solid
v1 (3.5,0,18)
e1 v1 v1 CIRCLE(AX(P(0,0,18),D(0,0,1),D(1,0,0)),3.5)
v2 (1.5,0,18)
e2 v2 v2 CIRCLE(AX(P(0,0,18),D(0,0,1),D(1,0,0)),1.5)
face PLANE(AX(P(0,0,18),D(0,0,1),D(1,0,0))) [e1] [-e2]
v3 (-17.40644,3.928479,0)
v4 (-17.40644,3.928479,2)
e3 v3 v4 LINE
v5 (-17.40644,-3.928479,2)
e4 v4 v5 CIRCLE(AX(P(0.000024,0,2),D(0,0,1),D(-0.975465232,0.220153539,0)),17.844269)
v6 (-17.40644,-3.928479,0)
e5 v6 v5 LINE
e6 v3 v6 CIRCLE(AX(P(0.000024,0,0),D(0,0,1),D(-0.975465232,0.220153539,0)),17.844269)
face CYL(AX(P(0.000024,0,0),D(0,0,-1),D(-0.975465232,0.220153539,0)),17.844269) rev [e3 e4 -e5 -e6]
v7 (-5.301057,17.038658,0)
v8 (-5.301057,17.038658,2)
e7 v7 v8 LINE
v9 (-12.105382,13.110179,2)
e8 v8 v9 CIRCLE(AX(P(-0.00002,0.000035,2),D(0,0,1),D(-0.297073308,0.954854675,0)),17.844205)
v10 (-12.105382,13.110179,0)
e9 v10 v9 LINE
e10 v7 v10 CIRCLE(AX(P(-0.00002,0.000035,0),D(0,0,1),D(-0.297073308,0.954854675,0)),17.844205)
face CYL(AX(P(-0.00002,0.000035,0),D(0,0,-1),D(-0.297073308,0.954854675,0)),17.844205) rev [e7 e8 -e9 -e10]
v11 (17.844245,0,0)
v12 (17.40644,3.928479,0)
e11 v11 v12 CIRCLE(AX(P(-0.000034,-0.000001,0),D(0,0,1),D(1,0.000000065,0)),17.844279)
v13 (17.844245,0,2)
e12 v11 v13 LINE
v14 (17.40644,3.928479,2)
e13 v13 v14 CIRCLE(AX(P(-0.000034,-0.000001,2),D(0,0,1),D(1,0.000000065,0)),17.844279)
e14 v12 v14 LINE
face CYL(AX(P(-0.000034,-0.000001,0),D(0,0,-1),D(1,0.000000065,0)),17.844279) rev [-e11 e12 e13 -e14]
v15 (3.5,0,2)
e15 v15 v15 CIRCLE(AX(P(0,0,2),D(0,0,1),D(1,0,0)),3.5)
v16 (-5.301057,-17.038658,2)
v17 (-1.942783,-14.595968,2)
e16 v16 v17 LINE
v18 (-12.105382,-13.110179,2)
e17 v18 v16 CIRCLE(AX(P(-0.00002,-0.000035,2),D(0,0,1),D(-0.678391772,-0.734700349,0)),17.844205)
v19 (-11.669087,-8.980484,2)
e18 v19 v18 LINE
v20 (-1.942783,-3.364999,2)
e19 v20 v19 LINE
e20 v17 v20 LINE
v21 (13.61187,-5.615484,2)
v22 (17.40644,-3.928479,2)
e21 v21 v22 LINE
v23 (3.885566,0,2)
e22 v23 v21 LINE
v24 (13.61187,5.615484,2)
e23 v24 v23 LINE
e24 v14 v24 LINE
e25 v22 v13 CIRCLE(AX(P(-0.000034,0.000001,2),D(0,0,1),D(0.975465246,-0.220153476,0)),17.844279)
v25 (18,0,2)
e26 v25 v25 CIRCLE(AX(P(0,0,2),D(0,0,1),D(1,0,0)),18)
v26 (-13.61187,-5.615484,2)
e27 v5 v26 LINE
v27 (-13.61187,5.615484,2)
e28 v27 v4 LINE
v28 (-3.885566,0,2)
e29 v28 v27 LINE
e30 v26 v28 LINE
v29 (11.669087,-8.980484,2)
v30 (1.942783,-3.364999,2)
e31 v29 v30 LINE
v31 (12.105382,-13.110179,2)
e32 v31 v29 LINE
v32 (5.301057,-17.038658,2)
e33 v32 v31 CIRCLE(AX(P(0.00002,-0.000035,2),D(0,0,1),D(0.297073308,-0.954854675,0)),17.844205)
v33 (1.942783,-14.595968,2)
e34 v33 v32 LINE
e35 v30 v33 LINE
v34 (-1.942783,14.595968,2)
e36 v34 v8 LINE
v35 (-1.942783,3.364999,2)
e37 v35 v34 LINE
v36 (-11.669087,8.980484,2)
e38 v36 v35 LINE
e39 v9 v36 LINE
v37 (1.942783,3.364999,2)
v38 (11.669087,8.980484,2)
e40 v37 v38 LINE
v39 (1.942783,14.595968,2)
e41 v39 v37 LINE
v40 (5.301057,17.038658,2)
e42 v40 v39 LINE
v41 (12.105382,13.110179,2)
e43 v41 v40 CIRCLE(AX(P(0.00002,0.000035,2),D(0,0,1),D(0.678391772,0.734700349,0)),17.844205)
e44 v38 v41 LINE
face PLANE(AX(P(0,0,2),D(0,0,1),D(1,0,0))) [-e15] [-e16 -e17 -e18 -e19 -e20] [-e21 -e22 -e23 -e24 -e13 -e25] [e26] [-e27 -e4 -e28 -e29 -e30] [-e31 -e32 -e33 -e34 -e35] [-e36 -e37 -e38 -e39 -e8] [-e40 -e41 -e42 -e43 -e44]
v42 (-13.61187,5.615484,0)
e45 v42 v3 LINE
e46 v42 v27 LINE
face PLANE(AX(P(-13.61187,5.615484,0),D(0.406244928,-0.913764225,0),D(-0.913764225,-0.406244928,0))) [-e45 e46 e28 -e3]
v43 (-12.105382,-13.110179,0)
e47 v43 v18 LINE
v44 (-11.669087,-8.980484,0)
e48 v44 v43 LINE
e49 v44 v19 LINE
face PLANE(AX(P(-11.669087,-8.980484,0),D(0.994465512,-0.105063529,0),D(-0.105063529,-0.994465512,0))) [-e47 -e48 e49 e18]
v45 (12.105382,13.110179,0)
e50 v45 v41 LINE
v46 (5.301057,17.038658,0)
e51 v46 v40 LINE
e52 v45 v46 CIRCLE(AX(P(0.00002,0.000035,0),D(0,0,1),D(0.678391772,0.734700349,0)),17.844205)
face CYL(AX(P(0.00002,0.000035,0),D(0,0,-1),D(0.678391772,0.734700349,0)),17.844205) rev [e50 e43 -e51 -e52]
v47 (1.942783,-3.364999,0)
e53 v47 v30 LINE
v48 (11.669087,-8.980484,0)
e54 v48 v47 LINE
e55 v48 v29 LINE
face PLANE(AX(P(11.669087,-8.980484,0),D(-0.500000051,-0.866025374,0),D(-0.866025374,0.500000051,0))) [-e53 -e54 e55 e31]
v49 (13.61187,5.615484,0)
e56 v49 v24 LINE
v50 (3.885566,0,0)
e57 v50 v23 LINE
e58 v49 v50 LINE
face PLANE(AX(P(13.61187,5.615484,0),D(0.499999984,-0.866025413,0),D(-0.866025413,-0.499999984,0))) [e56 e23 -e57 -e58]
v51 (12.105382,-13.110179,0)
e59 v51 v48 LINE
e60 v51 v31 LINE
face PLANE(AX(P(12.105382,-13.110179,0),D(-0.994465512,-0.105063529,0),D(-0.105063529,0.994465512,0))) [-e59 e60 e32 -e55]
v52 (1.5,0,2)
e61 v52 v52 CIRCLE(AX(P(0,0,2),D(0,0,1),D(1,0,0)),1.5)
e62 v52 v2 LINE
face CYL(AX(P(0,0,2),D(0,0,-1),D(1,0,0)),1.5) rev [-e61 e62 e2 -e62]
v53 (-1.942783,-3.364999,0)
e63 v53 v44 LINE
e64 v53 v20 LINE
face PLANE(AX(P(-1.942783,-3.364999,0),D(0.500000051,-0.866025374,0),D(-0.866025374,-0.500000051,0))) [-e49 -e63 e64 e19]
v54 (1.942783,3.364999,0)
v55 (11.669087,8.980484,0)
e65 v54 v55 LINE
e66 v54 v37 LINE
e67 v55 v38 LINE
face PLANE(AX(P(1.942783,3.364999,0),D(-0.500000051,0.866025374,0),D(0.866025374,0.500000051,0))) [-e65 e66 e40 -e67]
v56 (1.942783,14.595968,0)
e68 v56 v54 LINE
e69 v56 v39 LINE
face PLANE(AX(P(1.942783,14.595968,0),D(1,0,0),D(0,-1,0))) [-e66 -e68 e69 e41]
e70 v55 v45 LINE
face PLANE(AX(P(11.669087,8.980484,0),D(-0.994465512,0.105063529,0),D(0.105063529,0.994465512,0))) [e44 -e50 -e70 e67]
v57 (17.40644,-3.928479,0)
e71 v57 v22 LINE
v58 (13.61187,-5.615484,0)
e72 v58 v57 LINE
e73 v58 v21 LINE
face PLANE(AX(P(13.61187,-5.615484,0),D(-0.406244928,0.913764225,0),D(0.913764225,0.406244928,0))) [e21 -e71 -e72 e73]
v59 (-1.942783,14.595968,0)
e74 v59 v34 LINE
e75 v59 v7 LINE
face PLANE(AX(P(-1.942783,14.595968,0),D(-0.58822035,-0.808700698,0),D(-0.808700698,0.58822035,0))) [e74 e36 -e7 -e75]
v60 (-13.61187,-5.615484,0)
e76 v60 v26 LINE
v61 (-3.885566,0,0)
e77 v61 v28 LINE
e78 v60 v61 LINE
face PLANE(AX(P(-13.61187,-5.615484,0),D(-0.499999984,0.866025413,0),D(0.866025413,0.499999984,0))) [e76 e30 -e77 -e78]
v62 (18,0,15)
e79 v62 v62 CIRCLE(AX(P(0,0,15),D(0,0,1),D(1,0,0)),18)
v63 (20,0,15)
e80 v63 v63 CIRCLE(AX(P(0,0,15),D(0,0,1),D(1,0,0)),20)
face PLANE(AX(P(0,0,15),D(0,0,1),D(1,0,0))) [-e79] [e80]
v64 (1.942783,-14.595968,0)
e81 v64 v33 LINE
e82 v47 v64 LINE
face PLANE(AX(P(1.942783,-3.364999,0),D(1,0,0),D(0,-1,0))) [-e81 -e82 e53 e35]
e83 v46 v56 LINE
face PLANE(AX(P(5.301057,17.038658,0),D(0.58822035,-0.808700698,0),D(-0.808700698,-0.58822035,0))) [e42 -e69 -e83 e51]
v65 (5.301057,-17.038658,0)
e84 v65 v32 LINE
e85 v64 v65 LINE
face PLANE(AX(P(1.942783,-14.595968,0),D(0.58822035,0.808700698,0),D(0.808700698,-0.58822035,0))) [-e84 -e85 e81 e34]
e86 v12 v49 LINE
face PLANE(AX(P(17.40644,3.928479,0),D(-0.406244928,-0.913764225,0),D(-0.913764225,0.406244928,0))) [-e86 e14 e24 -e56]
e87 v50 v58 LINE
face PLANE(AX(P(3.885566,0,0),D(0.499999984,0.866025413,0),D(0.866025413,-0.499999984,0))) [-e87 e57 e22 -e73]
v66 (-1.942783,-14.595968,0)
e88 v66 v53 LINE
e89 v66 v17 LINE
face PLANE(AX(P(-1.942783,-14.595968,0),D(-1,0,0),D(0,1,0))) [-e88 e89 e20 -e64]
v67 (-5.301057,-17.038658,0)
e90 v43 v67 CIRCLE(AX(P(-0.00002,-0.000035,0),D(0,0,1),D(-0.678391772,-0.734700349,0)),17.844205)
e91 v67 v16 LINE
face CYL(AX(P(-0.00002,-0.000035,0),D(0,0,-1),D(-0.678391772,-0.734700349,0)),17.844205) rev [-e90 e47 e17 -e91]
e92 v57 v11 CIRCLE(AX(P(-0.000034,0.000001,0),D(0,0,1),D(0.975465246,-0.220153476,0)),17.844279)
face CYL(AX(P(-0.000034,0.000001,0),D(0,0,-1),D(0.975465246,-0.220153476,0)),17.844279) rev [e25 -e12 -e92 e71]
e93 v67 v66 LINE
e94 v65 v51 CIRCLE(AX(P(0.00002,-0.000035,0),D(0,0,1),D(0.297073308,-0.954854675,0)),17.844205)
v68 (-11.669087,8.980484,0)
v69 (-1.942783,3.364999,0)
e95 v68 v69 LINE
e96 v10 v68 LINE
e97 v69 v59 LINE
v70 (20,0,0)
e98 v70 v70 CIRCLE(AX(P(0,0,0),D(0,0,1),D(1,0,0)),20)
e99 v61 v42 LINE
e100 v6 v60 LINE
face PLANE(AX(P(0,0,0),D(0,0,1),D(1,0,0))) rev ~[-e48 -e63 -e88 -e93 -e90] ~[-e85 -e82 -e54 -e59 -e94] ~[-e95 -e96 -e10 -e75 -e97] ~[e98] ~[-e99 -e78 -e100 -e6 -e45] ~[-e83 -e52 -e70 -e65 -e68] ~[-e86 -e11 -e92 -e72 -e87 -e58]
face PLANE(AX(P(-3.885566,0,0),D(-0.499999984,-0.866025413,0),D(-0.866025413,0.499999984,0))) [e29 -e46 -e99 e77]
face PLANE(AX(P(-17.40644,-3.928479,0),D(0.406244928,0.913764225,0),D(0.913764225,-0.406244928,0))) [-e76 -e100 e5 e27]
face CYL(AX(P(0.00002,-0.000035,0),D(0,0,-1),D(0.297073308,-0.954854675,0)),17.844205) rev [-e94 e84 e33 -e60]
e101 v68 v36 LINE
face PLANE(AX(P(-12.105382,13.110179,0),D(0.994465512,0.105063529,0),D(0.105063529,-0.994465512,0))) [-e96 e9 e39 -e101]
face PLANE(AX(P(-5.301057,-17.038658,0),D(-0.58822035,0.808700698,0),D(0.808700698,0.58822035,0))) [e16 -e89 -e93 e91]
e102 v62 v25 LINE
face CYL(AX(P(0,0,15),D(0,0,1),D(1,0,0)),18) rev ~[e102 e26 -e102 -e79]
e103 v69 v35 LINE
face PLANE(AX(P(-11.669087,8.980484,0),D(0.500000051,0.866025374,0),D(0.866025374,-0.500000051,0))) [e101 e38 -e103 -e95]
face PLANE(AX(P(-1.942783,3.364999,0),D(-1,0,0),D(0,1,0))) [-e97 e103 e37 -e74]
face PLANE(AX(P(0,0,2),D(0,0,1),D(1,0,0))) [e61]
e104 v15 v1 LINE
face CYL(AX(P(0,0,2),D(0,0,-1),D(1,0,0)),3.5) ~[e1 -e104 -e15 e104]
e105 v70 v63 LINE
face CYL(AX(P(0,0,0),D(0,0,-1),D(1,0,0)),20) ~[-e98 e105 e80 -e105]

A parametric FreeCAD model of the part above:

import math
import FreeCAD as App
import Part
import Sketcher

V = App.Vector
Q = App.Units.Quantity

doc = App.newDocument("Part")
body = doc.addObject("PartDesign::Body", "Body")

# Sketch on XY plane
sketch1 = doc.addObject("Sketcher::SketchObject", "Sketch")
body.addObject(sketch1)
sketch1.AttachmentSupport = (doc.XY_Plane, [""])
sketch1.MapMode = "FlatFace"
sketch1.addGeometry(Part.Circle(V(0, 0, 0), V(0, 0, 1), 20), False)
sketch1.addConstraint([
    Sketcher.Constraint("Coincident", 0, 3, -1, 1),
    Sketcher.Constraint("Diameter", 0, 40.0),
])
pad1 = doc.addObject("PartDesign::Pad", "Pad")
body.addObject(pad1)
pad1.Profile = sketch1
pad1.Length = 15

# Sketch on XY plane
sketch2 = doc.addObject("Sketcher::SketchObject", "Sketch001")
body.addObject(sketch2)
sketch2.AttachmentSupport = (doc.XY_Plane, [""])
sketch2.MapMode = "FlatFace"
sketch2.AttachmentOffset = App.Placement(V(0, 0, 15), App.Rotation())
sketch2.addGeometry(Part.Circle(V(0, 0, 0), V(0, 0, 1), 18), False)
sketch2.addConstraint([
    Sketcher.Constraint("Coincident", 0, 3, -1, 1),
    Sketcher.Constraint("Diameter", 0, 36.0),
])
pocket1 = doc.addObject("PartDesign::Pocket", "Pocket")
body.addObject(pocket1)
pocket1.Profile = sketch2
pocket1.Length = 13

# Sketch on XY plane
sketch3 = doc.addObject("Sketcher::SketchObject", "Sketch002")
body.addObject(sketch3)
sketch3.AttachmentSupport = (doc.XY_Plane, [""])
sketch3.MapMode = "FlatFace"
sketch3.AttachmentOffset = App.Placement(V(0, 0, 2), App.Rotation())
sketch3.addGeometry([
    Part.Circle(V(0, 0, 0), V(0, 0, 1), 3.5),
    Part.Circle(V(0, 0, 0), V(0, 0, 1), 1.5),
], False)
sketch3.addConstraint([
    Sketcher.Constraint("Coincident", 0, 3, -1, 1),
    Sketcher.Constraint("Coincident", 1, 3, -1, 1),
    Sketcher.Constraint("Diameter", 0, 7.0),
    Sketcher.Constraint("Diameter", 1, 3.0),
])
pad2 = doc.addObject("PartDesign::Pad", "Pad001")
body.addObject(pad2)
pad2.Profile = sketch3
pad2.Length = 16

# Sketch on XY plane
sketch4 = doc.addObject("Sketcher::SketchObject", "Sketch003")
body.addObject(sketch4)
sketch4.AttachmentSupport = (doc.XY_Plane, [""])
sketch4.MapMode = "FlatFace"
sketch4.addGeometry([
    Part.LineSegment(V(-13.61187, 5.615484, 0), V(-17.40644, 3.928479, 0)),  # 0
    Part.ArcOfCircle(Part.Circle(V(0.000024, 0, 0), V(0, 0, 1), 17.844269), math.radians(167.281949), math.radians(192.718051)),  # 1
    Part.LineSegment(V(-17.40644, -3.928479, 0), V(-13.61187, -5.615484, 0)),  # 2
    Part.LineSegment(V(-13.61187, -5.615484, 0), V(-3.885566, 0, 0)),  # 3
    Part.LineSegment(V(-3.885566, 0, 0), V(-13.61187, 5.615484, 0)),  # 4
    Part.LineSegment(V(-11.669087, -8.980484, 0), V(-12.105382, -13.110179, 0)),  # 5
    Part.ArcOfCircle(Part.Circle(V(-0.00002, -0.000035, 0), V(0, 0, 1), 17.844205), math.radians(-132.718098), math.radians(-107.281904)),  # 6
    Part.LineSegment(V(-5.301057, -17.038658, 0), V(-1.942783, -14.595968, 0)),  # 7
    Part.LineSegment(V(-1.942783, -14.595968, 0), V(-1.942783, -3.364999, 0)),  # 8
    Part.LineSegment(V(-1.942783, -3.364999, 0), V(-11.669087, -8.980484, 0)),  # 9
    Part.LineSegment(V(1.942783, -14.595968, 0), V(5.301057, -17.038658, 0)),  # 10
    Part.ArcOfCircle(Part.Circle(V(0.00002, -0.000035, 0), V(0, 0, 1), 17.844205), math.radians(-72.718096), math.radians(-47.281902)),  # 11
    Part.LineSegment(V(12.105382, -13.110179, 0), V(11.669087, -8.980484, 0)),  # 12
    Part.LineSegment(V(11.669087, -8.980484, 0), V(1.942783, -3.364999, 0)),  # 13
    Part.LineSegment(V(1.942783, -3.364999, 0), V(1.942783, -14.595968, 0)),  # 14
    Part.ArcOfCircle(Part.Circle(V(-0.000034, -0.000001, 0), V(0, 0, 1), 17.844279), math.radians(0.000004), math.radians(12.718048)),  # 15
    Part.LineSegment(V(17.40644, 3.928479, 0), V(13.61187, 5.615484, 0)),  # 16
    Part.LineSegment(V(13.61187, 5.615484, 0), V(3.885566, 0, 0)),  # 17
    Part.LineSegment(V(3.885566, 0, 0), V(13.61187, -5.615484, 0)),  # 18
    Part.LineSegment(V(13.61187, -5.615484, 0), V(17.40644, -3.928479, 0)),  # 19
    Part.ArcOfCircle(Part.Circle(V(-0.000034, 0.000001, 0), V(0, 0, 1), 17.844279), math.radians(-12.718048), math.radians(-0.000004)),  # 20
    Part.ArcOfCircle(Part.Circle(V(0.00002, 0.000035, 0), V(0, 0, 1), 17.844205), math.radians(47.281902), math.radians(72.718096)),  # 21
    Part.LineSegment(V(5.301057, 17.038658, 0), V(1.942783, 14.595968, 0)),  # 22
    Part.LineSegment(V(1.942783, 14.595968, 0), V(1.942783, 3.364999, 0)),  # 23
    Part.LineSegment(V(1.942783, 3.364999, 0), V(11.669087, 8.980484, 0)),  # 24
    Part.LineSegment(V(11.669087, 8.980484, 0), V(12.105382, 13.110179, 0)),  # 25
    Part.LineSegment(V(-11.669087, 8.980484, 0), V(-1.942783, 3.364999, 0)),  # 26
    Part.LineSegment(V(-1.942783, 3.364999, 0), V(-1.942783, 14.595968, 0)),  # 27
    Part.LineSegment(V(-1.942783, 14.595968, 0), V(-5.301057, 17.038658, 0)),  # 28
    Part.ArcOfCircle(Part.Circle(V(-0.00002, 0.000035, 0), V(0, 0, 1), 17.844205), math.radians(107.281904), math.radians(132.718098)),  # 29
    Part.LineSegment(V(-12.105382, 13.110179, 0), V(-11.669087, 8.980484, 0)),  # 30
], False)
sketch4.addConstraint([
    Sketcher.Constraint("Coincident", 0, 2, 1, 1),
    Sketcher.Constraint("Coincident", 1, 2, 2, 1),
    Sketcher.Constraint("Coincident", 2, 2, 3, 1),
    Sketcher.Constraint("Coincident", 3, 2, 4, 1),
    Sketcher.Constraint("Coincident", 4, 2, 0, 1),
    Sketcher.Constraint("Coincident", 5, 2, 6, 1),
    Sketcher.Constraint("Coincident", 6, 2, 7, 1),
    Sketcher.Constraint("Coincident", 7, 2, 8, 1),
    Sketcher.Constraint("Coincident", 8, 2, 9, 1),
    Sketcher.Constraint("Coincident", 9, 2, 5, 1),
    Sketcher.Constraint("Coincident", 10, 2, 11, 1),
    Sketcher.Constraint("Coincident", 11, 2, 12, 1),
    Sketcher.Constraint("Coincident", 12, 2, 13, 1),
    Sketcher.Constraint("Coincident", 13, 2, 14, 1),
    Sketcher.Constraint("Coincident", 14, 2, 10, 1),
    Sketcher.Constraint("Coincident", 15, 2, 16, 1),
    Sketcher.Constraint("Coincident", 16, 2, 17, 1),
    Sketcher.Constraint("Coincident", 17, 2, 18, 1),
    Sketcher.Constraint("Coincident", 18, 2, 19, 1),
    Sketcher.Constraint("Coincident", 19, 2, 20, 1),
    Sketcher.Constraint("Tangent", 20, 2, 15, 1),
    Sketcher.Constraint("Coincident", 21, 2, 22, 1),
    Sketcher.Constraint("Coincident", 22, 2, 23, 1),
    Sketcher.Constraint("Coincident", 23, 2, 24, 1),
    Sketcher.Constraint("Coincident", 24, 2, 25, 1),
    Sketcher.Constraint("Coincident", 25, 2, 21, 1),
    Sketcher.Constraint("Coincident", 26, 2, 27, 1),
    Sketcher.Constraint("Coincident", 27, 2, 28, 1),
    Sketcher.Constraint("Coincident", 28, 2, 29, 1),
    Sketcher.Constraint("Coincident", 29, 2, 30, 1),
    Sketcher.Constraint("Coincident", 30, 2, 26, 1),
    Sketcher.Constraint("Vertical", 8),
    Sketcher.Constraint("Vertical", 14),
    Sketcher.Constraint("Vertical", 23),
    Sketcher.Constraint("Vertical", 27),
    Sketcher.Constraint("Equal", 6, 11),
    Sketcher.Constraint("Equal", 15, 20),
    Sketcher.Constraint("Equal", 11, 21),
    Sketcher.Constraint("Equal", 21, 29),
    Sketcher.Constraint("Symmetric", 6, 3, 21, 3, -1, 1),
    Sketcher.Constraint("Symmetric", 11, 3, 29, 3, -1, 1),
    Sketcher.Constraint("Symmetric", 1, 2, 15, 2, -1, 1),
    Sketcher.Constraint("Symmetric", 2, 2, 16, 2, -1, 1),
    Sketcher.Constraint("Symmetric", 3, 2, 17, 2, -1, 1),
    Sketcher.Constraint("Symmetric", 4, 2, 18, 2, -1, 1),
    Sketcher.Constraint("Symmetric", 0, 2, 19, 2, -1, 1),
    Sketcher.Constraint("Symmetric", 7, 2, 22, 2, -1, 1),
    Sketcher.Constraint("Symmetric", 9, 2, 24, 2, -1, 1),
    Sketcher.Constraint("Symmetric", 13, 2, 26, 2, -1, 1),
    Sketcher.Constraint("Symmetric", 12, 2, 30, 2, -1, 1),
    Sketcher.Constraint("Symmetric", 6, 3, 11, 3, -2),
    Sketcher.Constraint("Symmetric", 9, 2, 12, 2, -2),
    Sketcher.Constraint("Symmetric", 8, 2, 13, 2, -2),
    Sketcher.Constraint("Symmetric", 0, 2, 15, 2, -2),
    Sketcher.Constraint("Symmetric", 4, 2, 16, 2, -2),
    Sketcher.Constraint("PointOnObject", 3, 2, -1),
    Sketcher.Constraint("PointOnObject", 20, 2, -1),
    Sketcher.Constraint("Parallel", 3, 9),
    Sketcher.Constraint("Parallel", 7, 22),
    Sketcher.Constraint("Parallel", 17, 24),
    Sketcher.Constraint("Parallel", 5, 25),
    Sketcher.Constraint("Parallel", 10, 28),
    Sketcher.Constraint("Parallel", 12, 30),
    Sketcher.Constraint("Horizontal", 6, 2, 10, 2),
    Sketcher.Constraint("Horizontal", 5, 2, 11, 2),
    Sketcher.Constraint("Horizontal", 7, 2, 14, 2),
    Sketcher.Constraint("Horizontal", 22, 2, 27, 2),
    Sketcher.Constraint("Equal", 2, 5),
    Sketcher.Constraint("Equal", 5, 7),
    Sketcher.Constraint("Equal", 4, 9),
    Sketcher.Constraint("Angle", 3, Q("29.999999 deg")),
    Sketcher.Constraint("Radius", 1, 17.844269),
    Sketcher.Constraint("Radius", 15, 17.844279),
    Sketcher.Constraint("DistanceY", 8, 2, -1, 1, 3.364999),
    Sketcher.Constraint("Radius", 6, 17.844205),
    Sketcher.Constraint("DistanceY", 8, 1, 8, 2, 11.230969),
    Sketcher.Constraint("DistanceY", 5, 2, 1, 2, 9.1817),
    Sketcher.Constraint("DistanceX", 5, 2, 7, 2, 10.162599),
    Sketcher.Constraint("Distance", 0, 4.15268),
    Sketcher.Constraint("Distance", 3, 11.230968),
    Sketcher.Constraint("DistanceX", 0, 2, -1, 1, 17.40644),
    Sketcher.Constraint("DistanceY", 6, 2, -1, 1, 17.038658),
    Sketcher.Constraint("DistanceX", 0, 2, 29, 3, 17.40642),
])
pocket2 = doc.addObject("PartDesign::Pocket", "Pocket001")
body.addObject(pocket2)
pocket2.Profile = sketch4
pocket2.Length = 2
pocket2.Reversed = True

doc.recompute()
